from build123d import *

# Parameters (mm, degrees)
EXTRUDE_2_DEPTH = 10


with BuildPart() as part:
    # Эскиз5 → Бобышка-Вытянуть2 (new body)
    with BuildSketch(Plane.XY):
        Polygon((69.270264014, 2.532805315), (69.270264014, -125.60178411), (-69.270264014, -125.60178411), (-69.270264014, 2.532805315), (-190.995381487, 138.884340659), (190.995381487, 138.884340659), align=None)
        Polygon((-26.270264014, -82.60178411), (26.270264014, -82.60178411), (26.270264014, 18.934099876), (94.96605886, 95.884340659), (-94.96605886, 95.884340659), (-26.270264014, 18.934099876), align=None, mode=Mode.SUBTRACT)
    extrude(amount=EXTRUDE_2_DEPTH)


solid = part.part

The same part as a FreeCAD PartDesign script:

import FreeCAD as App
import Part
import Sketcher
from FreeCAD import Vector

doc = App.newDocument("Part")
body = doc.addObject("PartDesign::Body", "Body")

sketch1 = body.newObject("Sketcher::SketchObject", "Sketch")
sketch1.AttachmentSupport = (doc.getObject("XY_Plane"), [""])
sketch1.MapMode = "FlatFace"
sketch1.addGeometry([
    Part.LineSegment(Vector(69, -126, 0), Vector(69, 3, 0)),
    Part.LineSegment(Vector(69, 3, 0), Vector(191, 139, 0)),
    Part.LineSegment(Vector(191, 139, 0), Vector(-191, 139, 0)),
    Part.LineSegment(Vector(-191, 139, 0), Vector(-69, 3, 0)),
    Part.LineSegment(Vector(-69, 3, 0), Vector(-69, -126, 0)),
    Part.LineSegment(Vector(-69, -126, 0), Vector(69, -126, 0)),
    Part.LineSegment(Vector(-26, -83, 0), Vector(-26, 19, 0)),
    Part.LineSegment(Vector(-26, 19, 0), Vector(-95, 96, 0)),
    Part.LineSegment(Vector(-95, 96, 0), Vector(95, 96, 0)),
    Part.LineSegment(Vector(95, 96, 0), Vector(26, 19, 0)),
    Part.LineSegment(Vector(26, 19, 0), Vector(26, -83, 0)),
    Part.LineSegment(Vector(26, -83, 0), Vector(-26, -83, 0)),
], False)
sketch1.addConstraint([
    Sketcher.Constraint("Coincident", 0, 2, 1, 1),
    Sketcher.Constraint("Coincident", 1, 2, 2, 1),
    Sketcher.Constraint("Coincident", 2, 2, 3, 1),
    Sketcher.Constraint("Coincident", 3, 2, 4, 1),
    Sketcher.Constraint("Coincident", 4, 2, 5, 1),
    Sketcher.Constraint("Coincident", 5, 2, 0, 1),
    Sketcher.Constraint("Coincident", 6, 2, 7, 1),
    Sketcher.Constraint("Coincident", 7, 2, 8, 1),
    Sketcher.Constraint("Coincident", 8, 2, 9, 1),
    Sketcher.Constraint("Coincident", 9, 2, 10, 1),
    Sketcher.Constraint("Coincident", 10, 2, 11, 1),
    Sketcher.Constraint("Coincident", 11, 2, 6, 1),
    Sketcher.Constraint("Vertical", 0),
    Sketcher.Constraint("Horizontal", 2),
    Sketcher.Constraint("Vertical", 4),
    Sketcher.Constraint("Horizontal", 5),
    Sketcher.Constraint("Vertical", 6),
    Sketcher.Constraint("Horizontal", 8),
    Sketcher.Constraint("Vertical", 10),
    Sketcher.Constraint("Horizontal", 11),
    Sketcher.Constraint("Symmetric", 0, 2, 3, 2, -2),
    Sketcher.Constraint("Symmetric", 6, 2, 9, 2, -2),
    Sketcher.Constraint("Parallel", 3, 7),
    Sketcher.Constraint("Parallel", 1, 9),
    Sketcher.Constraint("Equal", 1, 3),
    Sketcher.Constraint("DistanceX", 3, 2, 6, 2, 43.0),
    Sketcher.Constraint("DistanceY", 7, 2, 2, 2, 43.0),
    Sketcher.Constraint("DistanceY", 5, 2, 10, 2, 43.0),
    Sketcher.Constraint("DistanceX", 5, 1, 5, 2, 138.540528),
    Sketcher.Constraint("DistanceY", 0, 1, 0, 2, 128.134589),
    Sketcher.Constraint("DistanceY", -1, 1, 6, 2, 18.9341),
    Sketcher.Constraint("DistanceX", 2, 2, 2, 1, 381.990763),
    Sketcher.Constraint("DistanceX", 8, 1, 8, 2, 189.932118),
    Sketcher.Constraint("DistanceY", 6, 1, 6, 2, 101.535884),
])
pad1 = body.newObject("PartDesign::Pad", "Pad")
pad1.Profile = sketch1
pad1.Length = 10

doc.recompute()
